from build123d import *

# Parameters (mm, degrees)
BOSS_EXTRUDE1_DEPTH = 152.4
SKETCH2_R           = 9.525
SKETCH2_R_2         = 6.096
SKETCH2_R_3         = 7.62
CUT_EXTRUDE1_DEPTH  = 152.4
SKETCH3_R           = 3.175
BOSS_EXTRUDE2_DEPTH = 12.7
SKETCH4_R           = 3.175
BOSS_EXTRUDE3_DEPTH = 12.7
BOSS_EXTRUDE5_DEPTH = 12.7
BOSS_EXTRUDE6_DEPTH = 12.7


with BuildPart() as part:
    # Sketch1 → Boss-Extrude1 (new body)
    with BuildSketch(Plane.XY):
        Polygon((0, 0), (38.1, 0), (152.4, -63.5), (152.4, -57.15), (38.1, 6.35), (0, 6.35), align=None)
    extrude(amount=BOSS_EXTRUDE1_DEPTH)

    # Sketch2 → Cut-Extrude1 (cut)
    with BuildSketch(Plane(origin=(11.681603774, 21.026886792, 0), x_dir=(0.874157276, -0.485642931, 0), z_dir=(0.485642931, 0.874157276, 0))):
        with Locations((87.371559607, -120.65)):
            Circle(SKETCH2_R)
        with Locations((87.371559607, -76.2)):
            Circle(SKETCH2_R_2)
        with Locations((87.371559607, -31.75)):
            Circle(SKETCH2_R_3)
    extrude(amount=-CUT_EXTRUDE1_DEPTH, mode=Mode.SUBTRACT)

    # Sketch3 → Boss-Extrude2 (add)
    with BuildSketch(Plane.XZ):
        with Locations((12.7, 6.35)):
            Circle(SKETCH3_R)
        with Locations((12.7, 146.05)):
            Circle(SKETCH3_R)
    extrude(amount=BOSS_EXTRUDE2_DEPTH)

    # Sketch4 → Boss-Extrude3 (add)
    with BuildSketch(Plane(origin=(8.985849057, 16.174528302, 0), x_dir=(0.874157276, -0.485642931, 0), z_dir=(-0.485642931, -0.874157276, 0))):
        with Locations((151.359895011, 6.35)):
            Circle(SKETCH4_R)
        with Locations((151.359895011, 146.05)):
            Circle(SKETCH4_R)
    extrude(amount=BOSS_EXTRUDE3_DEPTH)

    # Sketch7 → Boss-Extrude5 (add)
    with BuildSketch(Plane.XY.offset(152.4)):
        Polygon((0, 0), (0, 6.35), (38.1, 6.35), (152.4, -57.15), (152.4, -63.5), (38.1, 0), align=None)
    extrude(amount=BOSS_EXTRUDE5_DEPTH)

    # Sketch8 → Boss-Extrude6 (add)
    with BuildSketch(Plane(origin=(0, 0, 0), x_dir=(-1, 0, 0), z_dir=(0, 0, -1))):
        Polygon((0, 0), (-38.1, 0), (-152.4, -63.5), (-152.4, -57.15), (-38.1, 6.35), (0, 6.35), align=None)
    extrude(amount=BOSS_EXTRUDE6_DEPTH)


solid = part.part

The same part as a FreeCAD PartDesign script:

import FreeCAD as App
import Part
import Sketcher
Q = App.Units.Quantity

doc = App.newDocument("Part")
params = doc.addObject("Spreadsheet::Sheet", "Params")
for row, (alias, value) in enumerate([
    ("sketch1_width", "1.5 in"),
    ("sketch1_height", "0.25 in"),
    ("pad1_length", "6 in"),
    ("sketch2_diameter", "0.6 in"),
    ("sketch2_diameter2", "0.75 in"),
    ("sketch2_diameter3", "0.48 in"),
    ("pocket1_length", "6 in"),
    ("sketch3_diameter", "0.25 in"),
    ("pad2_length", "0.5 in"),
    ("sketch4_diameter", "0.25 in"),
    ("pad3_length", "0.5 in"),
    ("sketch5_width", "1.5 in"),
    ("sketch5_height", "0.25 in"),
    ("pad4_length", "0.5 in"),
    ("sketch6_width", "1.5 in"),
    ("sketch6_height", "0.25 in"),
    ("pad5_length", "0.5 in"),
], start=1):
    params.set(f"A{row}", alias)
    params.set(f"B{row}", "=" + value)
    params.setAlias(f"B{row}", alias)

body = doc.addObject("PartDesign::Body", "Body")

sketch1 = doc.addObject("Sketcher::SketchObject", "Sketch")
body.addObject(sketch1)
sketch1.AttachmentSupport = (doc.XY_Plane, [""])
sketch1.MapMode = "FlatFace"
sketch1.addGeometry(Part.LineSegment(App.Vector(0, 0, 0), App.Vector(38.1, 0, 0)), False)
sketch1.addGeometry(Part.LineSegment(App.Vector(38.1, 0, 0), App.Vector(152.4, -63.5, 0)), False)
sketch1.addGeometry(Part.LineSegment(App.Vector(152.4, -63.5, 0), App.Vector(152.4, -57.15, 0)), False)
sketch1.addGeometry(Part.LineSegment(App.Vector(152.4, -57.15, 0), App.Vector(38.1, 6.35, 0)), False)
sketch1.addGeometry(Part.LineSegment(App.Vector(38.1, 6.35, 0), App.Vector(0, 6.35, 0)), False)
sketch1.addGeometry(Part.LineSegment(App.Vector(0, 6.35, 0), App.Vector(0, 0, 0)), False)
sketch1.addConstraint(Sketcher.Constraint("Coincident", 0, 2, 1, 1))
sketch1.addConstraint(Sketcher.Constraint("Coincident", 1, 2, 2, 1))
sketch1.addConstraint(Sketcher.Constraint("Coincident", 2, 2, 3, 1))
sketch1.addConstraint(Sketcher.Constraint("Coincident", 3, 2, 4, 1))
sketch1.addConstraint(Sketcher.Constraint("Coincident", 4, 2, 5, 1))
sketch1.addConstraint(Sketcher.Constraint("Coincident", 5, 2, 0, 1))
sketch1.addConstraint(Sketcher.Constraint("Horizontal", 0))
sketch1.addConstraint(Sketcher.Constraint("Vertical", 2))
sketch1.addConstraint(Sketcher.Constraint("Horizontal", 4))
sketch1.addConstraint(Sketcher.Constraint("Vertical", 5))
sketch1.addConstraint(Sketcher.Constraint("Coincident", 5, 2, -1, 1))
sketch1.addConstraint(Sketcher.Constraint("Parallel", 1, 3))
sketch1.addConstraint(Sketcher.Constraint("Vertical", 0, 2, 3, 2))
sketch1.addConstraint(Sketcher.Constraint("DistanceX", 0, 1, 0, 2, Q("1.5 in")))
sketch1.addConstraint(Sketcher.Constraint("DistanceX", -1, 1, 1, 2, Q("6 in")))
sketch1.addConstraint(Sketcher.Constraint("DistanceY", 2, 1, 2, 2, Q("0.25 in")))
sketch1.addConstraint(Sketcher.Constraint("DistanceY", 1, 2, -1, 1, Q("2.5 in")))
sketch1.setExpression("Constraints[13]", "Params.sketch1_width")
sketch1.setExpression("Constraints[15]", "Params.sketch1_height")
pad1 = doc.addObject("PartDesign::Pad", "Pad")
body.addObject(pad1)
pad1.Profile = sketch1
pad1.setExpression("Length", "Params.pad1_length")

sketch2 = doc.addObject("Sketcher::SketchObject", "Sketch001")
body.addObject(sketch2)
sketch2.Placement = App.Placement(App.Vector(11.681604, 21.026887, 0), App.Rotation(App.Vector(0.874157276, -0.485642931, 0), App.Vector(0, 0, -1), App.Vector(0.485642931, 0.874157276, 0), "ZXY"))
sketch2.addGeometry(Part.Circle(App.Vector(87.37156, -120.65, 0), App.Vector(0, 0, 1), 9.525), False)
sketch2.addGeometry(Part.Circle(App.Vector(87.37156, -76.2, 0), App.Vector(0, 0, 1), 6.096), False)
sketch2.addGeometry(Part.Circle(App.Vector(87.37156, -31.75, 0), App.Vector(0, 0, 1), 7.62), False)
sketch2.addConstraint(Sketcher.Constraint("Vertical", 0, 3, 1, 3))
sketch2.addConstraint(Sketcher.Constraint("Vertical", 1, 3, 2, 3))
sketch2.addConstraint(Sketcher.Constraint("Diameter", 2, Q("0.6 in")))
sketch2.addConstraint(Sketcher.Constraint("Diameter", 0, Q("0.75 in")))
sketch2.addConstraint(Sketcher.Constraint("Diameter", 1, Q("0.48 in")))
sketch2.addConstraint(Sketcher.Constraint("DistanceY", 1, 3, -1, 1, Q("3 in")))
sketch2.addConstraint(Sketcher.Constraint("DistanceY", 0, 3, 2, 3, Q("3.5 in")))
sketch2.addConstraint(Sketcher.Constraint("DistanceY", 0, 3, -1, 1, Q("4.75 in")))
sketch2.addConstraint(Sketcher.Constraint("DistanceX", -1, 1, 0, 3, Q("87.37156 mm")))
sketch2.setExpression("Constraints[2]", "Params.sketch2_diameter")
sketch2.setExpression("Constraints[3]", "Params.sketch2_diameter2")
sketch2.setExpression("Constraints[4]", "Params.sketch2_diameter3")
pocket1 = doc.addObject("PartDesign::Pocket", "Pocket")
body.addObject(pocket1)
pocket1.Profile = sketch2
pocket1.setExpression("Length", "Params.pocket1_length")

sketch3 = doc.addObject("Sketcher::SketchObject", "Sketch002")
body.addObject(sketch3)
sketch3.AttachmentSupport = (doc.XZ_Plane, [""])
sketch3.MapMode = "FlatFace"
sketch3.addGeometry(Part.Circle(App.Vector(12.7, 6.35, 0), App.Vector(0, 0, 1), 3.175), False)
sketch3.addGeometry(Part.Circle(App.Vector(12.7, 146.05, 0), App.Vector(0, 0, 1), 3.175), False)
sketch3.addConstraint(Sketcher.Constraint("Equal", 0, 1))
sketch3.addConstraint(Sketcher.Constraint("Vertical", 0, 3, 1, 3))
sketch3.addConstraint(Sketcher.Constraint("Diameter", 0, Q("0.25 in")))
sketch3.addConstraint(Sketcher.Constraint("DistanceX", -1, 1, 0, 3, Q("0.5 in")))
sketch3.addConstraint(Sketcher.Constraint("DistanceY", 0, 3, 1, 3, Q("5.5 in")))
sketch3.addConstraint(Sketcher.Constraint("DistanceY", -1, 1, 0, 3, Q("0.25 in")))
sketch3.setExpression("Constraints[2]", "Params.sketch3_diameter")
pad2 = doc.addObject("PartDesign::Pad", "Pad001")
body.addObject(pad2)
pad2.Profile = sketch3
pad2.setExpression("Length", "Params.pad2_length")

sketch4 = doc.addObject("Sketcher::SketchObject", "Sketch003")
body.addObject(sketch4)
sketch4.Placement = App.Placement(App.Vector(8.985849, 16.174528, 0), App.Rotation(App.Vector(0.874157276, -0.485642931, 0), App.Vector(0, 0, 1), App.Vector(-0.485642931, -0.874157276, 0), "ZXY"))
sketch4.addGeometry(Part.Circle(App.Vector(151.359895, 6.35, 0), App.Vector(0, 0, 1), 3.175), False)
sketch4.addGeometry(Part.Circle(App.Vector(151.359895, 146.05, 0), App.Vector(0, 0, 1), 3.175), False)
sketch4.addConstraint(Sketcher.Constraint("Equal", 0, 1))
sketch4.addConstraint(Sketcher.Constraint("Vertical", 0, 3, 1, 3))
sketch4.addConstraint(Sketcher.Constraint("Diameter", 0, Q("0.25 in")))
sketch4.addConstraint(Sketcher.Constraint("DistanceY", 0, 3, 1, 3, Q("5.5 in")))
sketch4.addConstraint(Sketcher.Constraint("DistanceY", -1, 1, 0, 3, Q("0.25 in")))
sketch4.addConstraint(Sketcher.Constraint("DistanceX", -1, 1, 0, 3, Q("151.359895 mm")))
sketch4.setExpression("Constraints[2]", "Params.sketch4_diameter")
pad3 = doc.addObject("PartDesign::Pad", "Pad002")
body.addObject(pad3)
pad3.Profile = sketch4
pad3.setExpression("Length", "Params.pad3_length")

sketch5 = doc.addObject("Sketcher::SketchObject", "Sketch004")
body.addObject(sketch5)
sketch5.AttachmentSupport = (doc.XY_Plane, [""])
sketch5.MapMode = "FlatFace"
sketch5.AttachmentOffset = App.Placement(App.Vector(0, 0, 6 * 25.4), App.Rotation())
sketch5.addGeometry(Part.LineSegment(App.Vector(0, 6.35, 0), App.Vector(0, 0, 0)), False)
sketch5.addGeometry(Part.LineSegment(App.Vector(0, 0, 0), App.Vector(38.1, 0, 0)), False)
sketch5.addGeometry(Part.LineSegment(App.Vector(38.1, 0, 0), App.Vector(152.4, -63.5, 0)), False)
sketch5.addGeometry(Part.LineSegment(App.Vector(152.4, -63.5, 0), App.Vector(152.4, -57.15, 0)), False)
sketch5.addGeometry(Part.LineSegment(App.Vector(152.4, -57.15, 0), App.Vector(38.1, 6.35, 0)), False)
sketch5.addGeometry(Part.LineSegment(App.Vector(38.1, 6.35, 0), App.Vector(0, 6.35, 0)), False)
sketch5.addConstraint(Sketcher.Constraint("Coincident", 0, 2, 1, 1))
sketch5.addConstraint(Sketcher.Constraint("Coincident", 1, 2, 2, 1))
sketch5.addConstraint(Sketcher.Constraint("Coincident", 2, 2, 3, 1))
sketch5.addConstraint(Sketcher.Constraint("Coincident", 3, 2, 4, 1))
sketch5.addConstraint(Sketcher.Constraint("Coincident", 4, 2, 5, 1))
sketch5.addConstraint(Sketcher.Constraint("Coincident", 5, 2, 0, 1))
sketch5.addConstraint(Sketcher.Constraint("Vertical", 0))
sketch5.addConstraint(Sketcher.Constraint("Horizontal", 1))
sketch5.addConstraint(Sketcher.Constraint("Vertical", 3))
sketch5.addConstraint(Sketcher.Constraint("Horizontal", 5))
sketch5.addConstraint(Sketcher.Constraint("Coincident", 0, 2, -1, 1))
sketch5.addConstraint(Sketcher.Constraint("Parallel", 2, 4))
sketch5.addConstraint(Sketcher.Constraint("Vertical", 1, 2, 4, 2))
sketch5.addConstraint(Sketcher.Constraint("DistanceX", 1, 1, 1, 2, Q("1.5 in")))
sketch5.addConstraint(Sketcher.Constraint("DistanceX", -1, 1, 2, 2, Q("6 in")))
sketch5.addConstraint(Sketcher.Constraint("DistanceY", 0, 2, 0, 1, Q("0.25 in")))
sketch5.addConstraint(Sketcher.Constraint("DistanceY", 2, 2, -1, 1, Q("2.5 in")))
sketch5.setExpression("Constraints[13]", "Params.sketch5_width")
sketch5.setExpression("Constraints[15]", "Params.sketch5_height")
pad4 = doc.addObject("PartDesign::Pad", "Pad003")
body.addObject(pad4)
pad4.Profile = sketch5
pad4.setExpression("Length", "Params.pad4_length")

sketch6 = doc.addObject("Sketcher::SketchObject", "Sketch005")
body.addObject(sketch6)
sketch6.AttachmentSupport = (doc.XY_Plane, [""])
sketch6.MapMode = "FlatFace"
sketch6.addGeometry(Part.LineSegment(App.Vector(38.1, 0, 0), App.Vector(0, 0, 0)), False)
sketch6.addGeometry(Part.LineSegment(App.Vector(0, 0, 0), App.Vector(0, 6.35, 0)), False)
sketch6.addGeometry(Part.LineSegment(App.Vector(0, 6.35, 0), App.Vector(38.1, 6.35, 0)), False)
sketch6.addGeometry(Part.LineSegment(App.Vector(38.1, 6.35, 0), App.Vector(152.4, -57.15, 0)), False)
sketch6.addGeometry(Part.LineSegment(App.Vector(152.4, -57.15, 0), App.Vector(152.4, -63.5, 0)), False)
sketch6.addGeometry(Part.LineSegment(App.Vector(152.4, -63.5, 0), App.Vector(38.1, 0, 0)), False)
sketch6.addConstraint(Sketcher.Constraint("Coincident", 0, 2, 1, 1))
sketch6.addConstraint(Sketcher.Constraint("Coincident", 1, 2, 2, 1))
sketch6.addConstraint(Sketcher.Constraint("Coincident", 2, 2, 3, 1))
sketch6.addConstraint(Sketcher.Constraint("Coincident", 3, 2, 4, 1))
sketch6.addConstraint(Sketcher.Constraint("Coincident", 4, 2, 5, 1))
sketch6.addConstraint(Sketcher.Constraint("Coincident", 5, 2, 0, 1))
sketch6.addConstraint(Sketcher.Constraint("Horizontal", 0))
sketch6.addConstraint(Sketcher.Constraint("Vertical", 1))
sketch6.addConstraint(Sketcher.Constraint("Horizontal", 2))
sketch6.addConstraint(Sketcher.Constraint("Vertical", 4))
sketch6.addConstraint(Sketcher.Constraint("Coincident", 0, 2, -1, 1))
sketch6.addConstraint(Sketcher.Constraint("Parallel", 3, 5))
sketch6.addConstraint(Sketcher.Constraint("Vertical", 2, 2, 5, 2))
sketch6.addConstraint(Sketcher.Constraint("DistanceX", 0, 2, 0, 1, Q("1.5 in")))
sketch6.addConstraint(Sketcher.Constraint("DistanceX", -1, 1, 3, 2, Q("6 in")))
sketch6.addConstraint(Sketcher.Constraint("DistanceY", 1, 1, 1, 2, Q("0.25 in")))
sketch6.addConstraint(Sketcher.Constraint("DistanceY", 4, 2, -1, 1, Q("2.5 in")))
sketch6.setExpression("Constraints[13]", "Params.sketch6_width")
sketch6.setExpression("Constraints[15]", "Params.sketch6_height")
pad5 = doc.addObject("PartDesign::Pad", "Pad004")
body.addObject(pad5)
pad5.Profile = sketch6
pad5.setExpression("Length", "Params.pad5_length")
pad5.Reversed = True

doc.recompute()
